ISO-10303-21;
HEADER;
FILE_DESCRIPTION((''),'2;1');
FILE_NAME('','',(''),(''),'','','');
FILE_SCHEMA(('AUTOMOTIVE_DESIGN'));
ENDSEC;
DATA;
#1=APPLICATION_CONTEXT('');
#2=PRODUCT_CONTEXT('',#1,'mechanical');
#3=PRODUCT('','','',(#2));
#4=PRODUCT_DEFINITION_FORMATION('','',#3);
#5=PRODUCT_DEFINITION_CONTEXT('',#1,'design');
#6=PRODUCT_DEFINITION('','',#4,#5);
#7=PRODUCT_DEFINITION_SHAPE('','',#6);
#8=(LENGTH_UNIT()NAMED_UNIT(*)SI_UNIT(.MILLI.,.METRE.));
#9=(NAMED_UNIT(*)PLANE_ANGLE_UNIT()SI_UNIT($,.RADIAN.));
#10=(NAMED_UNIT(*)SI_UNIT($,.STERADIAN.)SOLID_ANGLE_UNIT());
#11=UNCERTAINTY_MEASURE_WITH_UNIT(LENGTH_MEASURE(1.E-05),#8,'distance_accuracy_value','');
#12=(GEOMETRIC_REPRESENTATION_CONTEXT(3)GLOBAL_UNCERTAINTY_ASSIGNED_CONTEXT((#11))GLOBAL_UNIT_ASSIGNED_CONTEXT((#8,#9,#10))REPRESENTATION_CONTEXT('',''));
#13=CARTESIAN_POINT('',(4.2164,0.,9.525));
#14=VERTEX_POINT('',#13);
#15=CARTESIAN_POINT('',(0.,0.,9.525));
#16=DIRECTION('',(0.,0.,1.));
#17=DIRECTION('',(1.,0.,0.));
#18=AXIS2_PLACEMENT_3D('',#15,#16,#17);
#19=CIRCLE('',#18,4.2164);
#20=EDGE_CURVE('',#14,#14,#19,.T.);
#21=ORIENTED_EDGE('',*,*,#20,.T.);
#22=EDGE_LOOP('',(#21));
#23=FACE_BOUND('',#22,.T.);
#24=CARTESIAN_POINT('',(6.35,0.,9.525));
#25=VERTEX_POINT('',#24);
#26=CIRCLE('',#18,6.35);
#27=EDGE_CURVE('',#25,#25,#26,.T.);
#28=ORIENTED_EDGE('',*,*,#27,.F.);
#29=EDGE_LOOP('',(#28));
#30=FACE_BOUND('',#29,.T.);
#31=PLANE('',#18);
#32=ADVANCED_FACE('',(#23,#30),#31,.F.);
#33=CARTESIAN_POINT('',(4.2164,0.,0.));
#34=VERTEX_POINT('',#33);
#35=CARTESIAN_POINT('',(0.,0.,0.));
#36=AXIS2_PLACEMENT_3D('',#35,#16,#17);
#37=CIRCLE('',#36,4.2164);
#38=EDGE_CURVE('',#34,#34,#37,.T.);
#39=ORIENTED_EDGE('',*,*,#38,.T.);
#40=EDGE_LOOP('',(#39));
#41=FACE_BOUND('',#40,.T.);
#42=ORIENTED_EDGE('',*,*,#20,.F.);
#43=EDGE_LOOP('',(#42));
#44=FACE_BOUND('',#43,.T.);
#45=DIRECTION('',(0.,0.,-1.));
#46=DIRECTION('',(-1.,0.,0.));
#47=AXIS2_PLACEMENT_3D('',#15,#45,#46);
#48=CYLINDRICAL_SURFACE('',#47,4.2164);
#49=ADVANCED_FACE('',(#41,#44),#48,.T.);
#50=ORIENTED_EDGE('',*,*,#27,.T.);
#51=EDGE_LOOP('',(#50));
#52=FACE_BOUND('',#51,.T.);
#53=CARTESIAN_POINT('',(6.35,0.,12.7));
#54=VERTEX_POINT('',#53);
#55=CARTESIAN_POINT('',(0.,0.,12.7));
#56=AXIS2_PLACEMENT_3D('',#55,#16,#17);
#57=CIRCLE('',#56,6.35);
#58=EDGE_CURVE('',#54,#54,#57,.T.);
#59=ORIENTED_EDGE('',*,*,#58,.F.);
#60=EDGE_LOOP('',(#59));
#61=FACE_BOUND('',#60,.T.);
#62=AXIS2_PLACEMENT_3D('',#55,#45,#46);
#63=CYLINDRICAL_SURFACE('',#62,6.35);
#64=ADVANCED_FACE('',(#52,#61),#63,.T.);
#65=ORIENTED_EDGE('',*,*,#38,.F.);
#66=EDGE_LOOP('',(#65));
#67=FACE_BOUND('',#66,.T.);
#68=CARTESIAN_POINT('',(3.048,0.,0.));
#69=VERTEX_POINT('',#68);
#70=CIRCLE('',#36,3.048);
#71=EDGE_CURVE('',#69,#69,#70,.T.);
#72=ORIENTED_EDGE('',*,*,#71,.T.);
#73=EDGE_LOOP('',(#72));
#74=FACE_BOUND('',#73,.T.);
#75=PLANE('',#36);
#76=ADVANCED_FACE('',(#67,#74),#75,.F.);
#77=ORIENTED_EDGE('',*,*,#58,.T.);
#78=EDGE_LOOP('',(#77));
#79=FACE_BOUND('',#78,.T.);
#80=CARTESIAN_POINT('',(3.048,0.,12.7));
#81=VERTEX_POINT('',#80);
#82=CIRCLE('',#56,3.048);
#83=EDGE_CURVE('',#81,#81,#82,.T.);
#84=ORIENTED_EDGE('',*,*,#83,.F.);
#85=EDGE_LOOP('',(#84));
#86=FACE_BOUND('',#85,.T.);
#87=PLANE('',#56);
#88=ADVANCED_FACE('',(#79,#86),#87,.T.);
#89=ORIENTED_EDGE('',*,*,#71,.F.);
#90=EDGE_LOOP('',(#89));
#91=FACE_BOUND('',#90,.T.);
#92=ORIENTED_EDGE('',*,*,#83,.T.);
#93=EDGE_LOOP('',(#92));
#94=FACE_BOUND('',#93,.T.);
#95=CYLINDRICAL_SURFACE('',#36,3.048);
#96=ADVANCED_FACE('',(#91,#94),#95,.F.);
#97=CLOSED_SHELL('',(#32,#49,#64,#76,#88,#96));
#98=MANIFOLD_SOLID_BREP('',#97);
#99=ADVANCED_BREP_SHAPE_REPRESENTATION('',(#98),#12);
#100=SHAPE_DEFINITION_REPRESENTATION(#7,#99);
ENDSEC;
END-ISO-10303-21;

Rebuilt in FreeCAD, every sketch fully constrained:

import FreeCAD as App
import Part
import Sketcher
Q = App.Units.Quantity

doc = App.newDocument("Part")
body = doc.addObject("PartDesign::Body", "Body")

sketch1 = body.newObject("Sketcher::SketchObject", "Sketch")
sketch1.AttachmentSupport = (doc.getObject("XY_Plane"), [""])
sketch1.MapMode = "FlatFace"
sketch1.addGeometry(Part.Circle(App.Vector(0, 0, 0), App.Vector(0, 0, 1), 4.2164), False)
sketch1.addConstraint([
    Sketcher.Constraint("Coincident", 0, 3, -1, 1),
    Sketcher.Constraint("Diameter", 0, Q("0.332 in")),
])
pad1 = body.newObject("PartDesign::Pad", "Pad")
pad1.Profile = sketch1
pad1.Length = Q("0.375 in")

sketch2 = body.newObject("Sketcher::SketchObject", "Sketch001")
sketch2.AttachmentSupport = (doc.getObject("XY_Plane"), [""])
sketch2.MapMode = "FlatFace"
sketch2.AttachmentOffset = App.Placement(App.Vector(0, 0, 0.375 * 25.4), App.Rotation())
sketch2.addGeometry(Part.Circle(App.Vector(0, 0, 0), App.Vector(0, 0, 1), 6.35), False)
sketch2.addConstraint([
    Sketcher.Constraint("Coincident", 0, 3, -1, 1),
    Sketcher.Constraint("Diameter", 0, Q("0.5 in")),
])
pad2 = body.newObject("PartDesign::Pad", "Pad001")
pad2.Profile = sketch2
pad2.Length = Q("0.125 in")

sketch3 = body.newObject("Sketcher::SketchObject", "Sketch002")
sketch3.AttachmentSupport = (doc.getObject("XY_Plane"), [""])
sketch3.MapMode = "FlatFace"
sketch3.AttachmentOffset = App.Placement(App.Vector(0, 0, 0.5 * 25.4), App.Rotation())
sketch3.addGeometry(Part.Circle(App.Vector(0, 0, 0), App.Vector(0, 0, 1), 3.048), False)
sketch3.addConstraint([
    Sketcher.Constraint("Coincident", 0, 3, -1, 1),
    Sketcher.Constraint("Diameter", 0, Q("0.24 in")),
])
pocket1 = body.newObject("PartDesign::Pocket", "Pocket")
pocket1.Profile = sketch3
pocket1.Type = "ThroughAll"

doc.recompute()
